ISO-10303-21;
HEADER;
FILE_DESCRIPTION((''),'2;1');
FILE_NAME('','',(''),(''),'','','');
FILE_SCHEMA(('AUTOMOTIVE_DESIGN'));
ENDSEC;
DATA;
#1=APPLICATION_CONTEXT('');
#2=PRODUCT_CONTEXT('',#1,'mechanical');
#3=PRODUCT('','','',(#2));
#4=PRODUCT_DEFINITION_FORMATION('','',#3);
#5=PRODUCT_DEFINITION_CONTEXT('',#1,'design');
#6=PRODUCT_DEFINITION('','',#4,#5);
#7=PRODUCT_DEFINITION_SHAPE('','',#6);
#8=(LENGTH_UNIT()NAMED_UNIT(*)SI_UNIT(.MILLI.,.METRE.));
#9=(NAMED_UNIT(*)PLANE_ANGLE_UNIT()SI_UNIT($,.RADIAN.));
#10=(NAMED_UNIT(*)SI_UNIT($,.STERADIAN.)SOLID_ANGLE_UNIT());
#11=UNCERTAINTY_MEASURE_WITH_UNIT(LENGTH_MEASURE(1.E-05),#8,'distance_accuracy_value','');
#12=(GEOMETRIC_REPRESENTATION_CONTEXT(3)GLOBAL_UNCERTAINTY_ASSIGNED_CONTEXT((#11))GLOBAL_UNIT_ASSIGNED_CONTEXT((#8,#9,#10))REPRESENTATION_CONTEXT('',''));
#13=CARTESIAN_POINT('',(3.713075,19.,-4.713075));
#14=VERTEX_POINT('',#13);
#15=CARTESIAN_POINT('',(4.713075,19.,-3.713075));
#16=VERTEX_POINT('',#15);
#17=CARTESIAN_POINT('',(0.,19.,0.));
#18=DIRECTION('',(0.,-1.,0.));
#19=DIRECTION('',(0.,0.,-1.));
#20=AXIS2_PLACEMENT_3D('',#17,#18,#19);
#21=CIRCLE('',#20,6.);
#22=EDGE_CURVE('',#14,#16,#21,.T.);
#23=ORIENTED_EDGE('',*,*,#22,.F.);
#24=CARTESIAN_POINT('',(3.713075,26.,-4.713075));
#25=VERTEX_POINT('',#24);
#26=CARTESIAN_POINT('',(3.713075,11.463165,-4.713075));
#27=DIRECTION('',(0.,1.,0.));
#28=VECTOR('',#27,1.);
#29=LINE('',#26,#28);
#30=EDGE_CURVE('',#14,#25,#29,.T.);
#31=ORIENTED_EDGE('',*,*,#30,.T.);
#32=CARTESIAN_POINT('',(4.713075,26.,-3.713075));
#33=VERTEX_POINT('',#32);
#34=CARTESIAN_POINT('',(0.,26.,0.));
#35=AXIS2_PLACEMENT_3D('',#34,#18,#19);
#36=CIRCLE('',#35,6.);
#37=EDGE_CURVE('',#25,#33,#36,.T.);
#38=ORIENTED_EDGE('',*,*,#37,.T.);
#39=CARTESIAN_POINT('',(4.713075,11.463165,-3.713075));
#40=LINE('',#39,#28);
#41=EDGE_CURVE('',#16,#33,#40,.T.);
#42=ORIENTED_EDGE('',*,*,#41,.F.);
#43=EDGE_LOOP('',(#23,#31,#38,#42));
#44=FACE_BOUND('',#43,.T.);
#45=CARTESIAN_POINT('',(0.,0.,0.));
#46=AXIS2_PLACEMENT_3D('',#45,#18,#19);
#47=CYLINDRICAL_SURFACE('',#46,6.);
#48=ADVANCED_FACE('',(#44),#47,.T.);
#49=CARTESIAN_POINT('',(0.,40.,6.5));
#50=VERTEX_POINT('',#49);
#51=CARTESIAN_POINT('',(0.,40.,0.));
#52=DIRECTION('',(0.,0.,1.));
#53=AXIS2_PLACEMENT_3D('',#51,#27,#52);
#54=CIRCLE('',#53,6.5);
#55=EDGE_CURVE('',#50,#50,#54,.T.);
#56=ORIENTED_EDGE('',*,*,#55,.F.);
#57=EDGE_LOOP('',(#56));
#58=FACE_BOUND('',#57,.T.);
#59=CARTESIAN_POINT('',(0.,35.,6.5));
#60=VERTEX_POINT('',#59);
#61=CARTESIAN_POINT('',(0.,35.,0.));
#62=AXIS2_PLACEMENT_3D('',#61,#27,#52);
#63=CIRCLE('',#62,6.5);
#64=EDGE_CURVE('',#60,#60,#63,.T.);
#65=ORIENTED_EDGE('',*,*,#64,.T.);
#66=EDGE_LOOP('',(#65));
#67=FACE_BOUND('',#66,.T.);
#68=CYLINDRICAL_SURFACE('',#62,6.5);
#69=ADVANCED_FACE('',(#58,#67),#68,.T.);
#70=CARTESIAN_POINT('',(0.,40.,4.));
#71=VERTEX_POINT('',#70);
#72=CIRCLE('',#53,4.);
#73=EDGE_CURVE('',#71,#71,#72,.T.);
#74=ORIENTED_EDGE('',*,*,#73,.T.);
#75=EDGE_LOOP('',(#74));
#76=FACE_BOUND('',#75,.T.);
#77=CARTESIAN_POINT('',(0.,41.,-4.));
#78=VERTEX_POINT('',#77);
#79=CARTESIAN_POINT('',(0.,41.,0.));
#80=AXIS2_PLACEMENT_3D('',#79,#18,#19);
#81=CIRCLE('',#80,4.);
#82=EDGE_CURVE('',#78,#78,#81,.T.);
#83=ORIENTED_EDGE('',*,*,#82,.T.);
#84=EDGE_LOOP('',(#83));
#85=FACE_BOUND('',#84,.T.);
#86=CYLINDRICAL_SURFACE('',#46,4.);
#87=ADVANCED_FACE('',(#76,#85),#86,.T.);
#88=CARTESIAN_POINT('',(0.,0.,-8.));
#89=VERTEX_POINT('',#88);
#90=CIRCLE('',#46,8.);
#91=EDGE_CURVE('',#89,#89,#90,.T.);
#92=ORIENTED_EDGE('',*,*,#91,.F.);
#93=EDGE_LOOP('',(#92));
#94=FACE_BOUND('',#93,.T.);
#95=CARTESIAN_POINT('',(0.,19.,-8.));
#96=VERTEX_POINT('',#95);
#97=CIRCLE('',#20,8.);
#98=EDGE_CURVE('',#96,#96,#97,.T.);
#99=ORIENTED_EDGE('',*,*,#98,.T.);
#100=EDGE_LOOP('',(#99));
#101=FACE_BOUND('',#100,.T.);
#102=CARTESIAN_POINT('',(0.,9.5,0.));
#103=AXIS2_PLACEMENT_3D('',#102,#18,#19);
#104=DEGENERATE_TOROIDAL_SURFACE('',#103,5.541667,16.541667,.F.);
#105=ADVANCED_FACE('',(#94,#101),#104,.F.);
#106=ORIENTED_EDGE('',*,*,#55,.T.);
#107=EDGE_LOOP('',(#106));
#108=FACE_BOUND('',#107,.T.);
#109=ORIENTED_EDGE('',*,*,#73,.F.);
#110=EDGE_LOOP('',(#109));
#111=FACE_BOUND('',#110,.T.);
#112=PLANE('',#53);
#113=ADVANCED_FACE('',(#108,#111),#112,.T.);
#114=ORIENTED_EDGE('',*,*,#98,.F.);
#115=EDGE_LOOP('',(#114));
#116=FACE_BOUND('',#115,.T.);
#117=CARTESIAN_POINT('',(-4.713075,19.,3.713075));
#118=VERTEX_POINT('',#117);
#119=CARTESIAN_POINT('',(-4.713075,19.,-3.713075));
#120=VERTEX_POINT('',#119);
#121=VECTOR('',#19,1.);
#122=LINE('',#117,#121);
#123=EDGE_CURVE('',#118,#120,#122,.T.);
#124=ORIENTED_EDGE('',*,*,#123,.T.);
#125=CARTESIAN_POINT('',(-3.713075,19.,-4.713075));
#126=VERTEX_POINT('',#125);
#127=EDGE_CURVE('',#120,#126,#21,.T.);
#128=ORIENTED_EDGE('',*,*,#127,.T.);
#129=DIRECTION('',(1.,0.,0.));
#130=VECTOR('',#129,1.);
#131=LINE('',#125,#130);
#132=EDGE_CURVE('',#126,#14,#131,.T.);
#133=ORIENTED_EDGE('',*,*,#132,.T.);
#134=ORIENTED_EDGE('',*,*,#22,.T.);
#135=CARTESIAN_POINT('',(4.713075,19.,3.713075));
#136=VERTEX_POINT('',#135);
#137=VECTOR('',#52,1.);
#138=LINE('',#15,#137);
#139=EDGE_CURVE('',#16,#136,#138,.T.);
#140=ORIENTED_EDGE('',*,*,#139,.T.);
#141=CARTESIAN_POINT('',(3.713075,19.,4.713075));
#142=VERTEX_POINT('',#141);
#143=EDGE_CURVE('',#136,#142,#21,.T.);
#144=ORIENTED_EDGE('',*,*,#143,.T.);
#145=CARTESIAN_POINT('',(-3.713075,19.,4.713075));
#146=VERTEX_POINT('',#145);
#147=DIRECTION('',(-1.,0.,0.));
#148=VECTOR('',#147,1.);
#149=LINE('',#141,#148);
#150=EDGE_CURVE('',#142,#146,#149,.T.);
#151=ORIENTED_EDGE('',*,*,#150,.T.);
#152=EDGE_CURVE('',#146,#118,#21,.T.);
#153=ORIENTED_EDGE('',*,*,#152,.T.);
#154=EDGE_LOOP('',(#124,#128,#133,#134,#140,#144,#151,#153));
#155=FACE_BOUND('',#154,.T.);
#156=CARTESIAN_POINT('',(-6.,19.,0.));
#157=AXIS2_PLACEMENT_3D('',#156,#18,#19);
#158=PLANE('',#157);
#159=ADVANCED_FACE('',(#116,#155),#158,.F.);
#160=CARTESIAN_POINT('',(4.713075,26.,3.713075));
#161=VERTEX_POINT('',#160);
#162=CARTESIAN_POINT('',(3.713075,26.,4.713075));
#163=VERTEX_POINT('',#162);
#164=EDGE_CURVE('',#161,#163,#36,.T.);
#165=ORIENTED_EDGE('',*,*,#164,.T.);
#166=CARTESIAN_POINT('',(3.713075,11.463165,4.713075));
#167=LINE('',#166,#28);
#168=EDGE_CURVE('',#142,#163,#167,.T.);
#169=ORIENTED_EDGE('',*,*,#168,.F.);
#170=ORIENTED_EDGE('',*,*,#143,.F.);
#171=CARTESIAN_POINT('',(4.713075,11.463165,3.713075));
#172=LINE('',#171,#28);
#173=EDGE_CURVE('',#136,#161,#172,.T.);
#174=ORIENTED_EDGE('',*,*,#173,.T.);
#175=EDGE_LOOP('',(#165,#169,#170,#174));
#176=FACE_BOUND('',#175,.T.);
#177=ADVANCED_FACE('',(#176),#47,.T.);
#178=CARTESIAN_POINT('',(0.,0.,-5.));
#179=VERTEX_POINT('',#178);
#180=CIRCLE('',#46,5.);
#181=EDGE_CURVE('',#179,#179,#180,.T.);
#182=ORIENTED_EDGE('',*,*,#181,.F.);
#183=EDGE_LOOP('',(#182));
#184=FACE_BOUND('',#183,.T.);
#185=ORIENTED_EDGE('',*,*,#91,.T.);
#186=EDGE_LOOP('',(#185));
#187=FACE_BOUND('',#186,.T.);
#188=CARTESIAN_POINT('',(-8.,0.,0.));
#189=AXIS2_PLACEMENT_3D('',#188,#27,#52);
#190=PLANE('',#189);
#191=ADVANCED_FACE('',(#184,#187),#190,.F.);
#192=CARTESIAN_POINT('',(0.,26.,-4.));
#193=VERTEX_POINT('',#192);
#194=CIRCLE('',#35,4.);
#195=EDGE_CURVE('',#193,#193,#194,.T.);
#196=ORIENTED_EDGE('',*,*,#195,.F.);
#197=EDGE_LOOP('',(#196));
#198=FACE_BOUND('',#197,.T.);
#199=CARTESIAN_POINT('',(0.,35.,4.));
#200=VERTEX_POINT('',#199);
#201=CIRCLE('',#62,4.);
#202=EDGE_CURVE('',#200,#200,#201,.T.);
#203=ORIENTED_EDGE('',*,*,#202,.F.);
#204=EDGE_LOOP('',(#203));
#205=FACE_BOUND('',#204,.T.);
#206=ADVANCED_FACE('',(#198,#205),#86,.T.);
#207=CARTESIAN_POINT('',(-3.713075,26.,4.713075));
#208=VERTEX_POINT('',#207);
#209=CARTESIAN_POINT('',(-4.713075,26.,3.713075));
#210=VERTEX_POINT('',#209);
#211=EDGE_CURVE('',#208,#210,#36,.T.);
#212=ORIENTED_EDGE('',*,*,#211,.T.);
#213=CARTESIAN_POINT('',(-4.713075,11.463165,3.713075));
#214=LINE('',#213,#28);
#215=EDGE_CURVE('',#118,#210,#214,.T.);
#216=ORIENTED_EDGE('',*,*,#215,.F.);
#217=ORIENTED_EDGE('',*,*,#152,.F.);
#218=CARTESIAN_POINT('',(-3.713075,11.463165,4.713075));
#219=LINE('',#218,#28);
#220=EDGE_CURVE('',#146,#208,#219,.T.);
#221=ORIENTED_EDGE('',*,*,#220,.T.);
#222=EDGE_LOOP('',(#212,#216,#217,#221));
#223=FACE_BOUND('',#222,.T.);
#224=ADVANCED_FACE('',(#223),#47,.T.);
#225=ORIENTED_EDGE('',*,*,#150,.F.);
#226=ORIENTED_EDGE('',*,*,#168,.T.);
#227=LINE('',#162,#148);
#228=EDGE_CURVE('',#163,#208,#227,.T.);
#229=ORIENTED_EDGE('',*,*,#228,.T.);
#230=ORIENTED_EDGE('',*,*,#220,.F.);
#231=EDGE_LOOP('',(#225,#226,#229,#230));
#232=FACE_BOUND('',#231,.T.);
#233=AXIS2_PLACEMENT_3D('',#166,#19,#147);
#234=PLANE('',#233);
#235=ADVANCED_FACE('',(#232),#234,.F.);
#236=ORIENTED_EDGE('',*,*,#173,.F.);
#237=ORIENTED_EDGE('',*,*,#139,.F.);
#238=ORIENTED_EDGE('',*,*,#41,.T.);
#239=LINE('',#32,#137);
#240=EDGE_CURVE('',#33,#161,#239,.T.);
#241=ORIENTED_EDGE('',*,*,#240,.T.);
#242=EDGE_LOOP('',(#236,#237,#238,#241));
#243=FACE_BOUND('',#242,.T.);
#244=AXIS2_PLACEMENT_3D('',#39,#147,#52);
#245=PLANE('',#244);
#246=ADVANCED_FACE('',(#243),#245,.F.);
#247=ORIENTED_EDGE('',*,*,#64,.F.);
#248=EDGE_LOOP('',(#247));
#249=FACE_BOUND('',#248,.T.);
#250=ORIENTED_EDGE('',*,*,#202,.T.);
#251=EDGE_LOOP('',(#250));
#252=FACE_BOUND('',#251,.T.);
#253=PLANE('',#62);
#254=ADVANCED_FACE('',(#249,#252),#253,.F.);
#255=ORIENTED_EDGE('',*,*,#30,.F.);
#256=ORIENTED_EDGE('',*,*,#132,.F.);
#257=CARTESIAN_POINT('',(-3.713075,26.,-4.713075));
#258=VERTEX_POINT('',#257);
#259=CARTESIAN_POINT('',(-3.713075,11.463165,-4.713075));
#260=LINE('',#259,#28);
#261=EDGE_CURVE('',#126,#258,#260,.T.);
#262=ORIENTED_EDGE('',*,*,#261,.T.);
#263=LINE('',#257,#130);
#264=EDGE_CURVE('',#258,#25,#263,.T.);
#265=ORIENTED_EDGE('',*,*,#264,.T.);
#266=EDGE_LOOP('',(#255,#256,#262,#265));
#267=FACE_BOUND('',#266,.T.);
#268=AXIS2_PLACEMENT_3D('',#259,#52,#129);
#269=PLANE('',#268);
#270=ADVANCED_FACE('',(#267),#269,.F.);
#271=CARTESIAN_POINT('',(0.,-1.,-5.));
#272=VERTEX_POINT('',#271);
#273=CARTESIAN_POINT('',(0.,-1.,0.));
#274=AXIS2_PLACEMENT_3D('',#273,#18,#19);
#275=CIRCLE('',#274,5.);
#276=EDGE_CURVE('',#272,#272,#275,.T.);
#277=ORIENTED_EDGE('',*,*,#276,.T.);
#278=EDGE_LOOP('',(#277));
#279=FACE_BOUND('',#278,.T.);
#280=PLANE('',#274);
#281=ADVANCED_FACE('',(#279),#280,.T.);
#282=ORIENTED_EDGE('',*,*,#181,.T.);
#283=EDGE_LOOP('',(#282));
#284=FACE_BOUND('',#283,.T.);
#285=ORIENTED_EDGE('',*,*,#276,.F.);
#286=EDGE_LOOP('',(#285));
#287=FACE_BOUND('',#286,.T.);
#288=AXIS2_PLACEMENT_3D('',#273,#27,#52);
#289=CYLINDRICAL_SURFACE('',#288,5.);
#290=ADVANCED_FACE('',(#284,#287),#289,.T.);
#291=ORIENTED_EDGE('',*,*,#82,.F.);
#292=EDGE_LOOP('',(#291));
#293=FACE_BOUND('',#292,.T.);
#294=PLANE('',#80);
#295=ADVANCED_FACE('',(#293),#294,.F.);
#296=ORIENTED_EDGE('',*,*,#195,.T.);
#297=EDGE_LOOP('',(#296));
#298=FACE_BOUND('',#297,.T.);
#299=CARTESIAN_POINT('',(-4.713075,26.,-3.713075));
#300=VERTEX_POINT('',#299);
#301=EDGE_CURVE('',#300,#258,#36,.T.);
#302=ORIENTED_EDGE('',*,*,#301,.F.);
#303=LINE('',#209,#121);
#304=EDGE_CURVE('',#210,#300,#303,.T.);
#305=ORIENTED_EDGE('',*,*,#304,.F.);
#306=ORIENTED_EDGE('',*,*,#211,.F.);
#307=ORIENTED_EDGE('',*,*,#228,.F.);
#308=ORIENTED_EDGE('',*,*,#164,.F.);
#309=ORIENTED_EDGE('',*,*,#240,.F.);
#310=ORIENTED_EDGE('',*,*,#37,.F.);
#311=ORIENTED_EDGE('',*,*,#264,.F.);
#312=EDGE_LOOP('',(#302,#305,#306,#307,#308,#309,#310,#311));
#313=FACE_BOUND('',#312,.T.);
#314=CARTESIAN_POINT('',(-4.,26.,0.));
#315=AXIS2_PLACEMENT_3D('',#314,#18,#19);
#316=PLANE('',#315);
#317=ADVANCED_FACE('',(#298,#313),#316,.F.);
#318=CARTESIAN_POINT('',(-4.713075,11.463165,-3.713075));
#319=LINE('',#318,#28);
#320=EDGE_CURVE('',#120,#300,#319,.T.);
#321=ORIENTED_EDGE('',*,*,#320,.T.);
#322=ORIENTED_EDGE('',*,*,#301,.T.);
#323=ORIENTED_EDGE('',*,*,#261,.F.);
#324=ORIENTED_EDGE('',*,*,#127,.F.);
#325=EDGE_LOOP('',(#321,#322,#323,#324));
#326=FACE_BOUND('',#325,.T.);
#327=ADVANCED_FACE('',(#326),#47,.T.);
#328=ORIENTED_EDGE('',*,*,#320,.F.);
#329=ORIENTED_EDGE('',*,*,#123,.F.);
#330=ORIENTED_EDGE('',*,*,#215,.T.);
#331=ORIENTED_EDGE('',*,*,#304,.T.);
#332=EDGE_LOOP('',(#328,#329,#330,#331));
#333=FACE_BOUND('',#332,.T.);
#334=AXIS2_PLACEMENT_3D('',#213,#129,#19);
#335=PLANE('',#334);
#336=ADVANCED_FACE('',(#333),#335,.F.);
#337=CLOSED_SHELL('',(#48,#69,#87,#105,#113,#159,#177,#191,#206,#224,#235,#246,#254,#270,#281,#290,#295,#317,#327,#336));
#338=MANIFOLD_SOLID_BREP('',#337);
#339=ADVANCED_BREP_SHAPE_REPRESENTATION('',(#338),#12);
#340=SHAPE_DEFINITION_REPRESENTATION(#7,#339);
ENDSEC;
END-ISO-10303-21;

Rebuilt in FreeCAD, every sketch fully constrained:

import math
import FreeCAD as App
import Part
import Sketcher
from FreeCAD import Vector

doc = App.newDocument("Part")
body = doc.addObject("PartDesign::Body", "Body")

sketch1 = body.newObject("Sketcher::SketchObject", "Sketch")
sketch1.AttachmentSupport = (doc.getObject("XY_Plane"), [""])
sketch1.MapMode = "FlatFace"
sketch1.addGeometry([
    Part.LineSegment(Vector(-8, 0, 0), Vector(0, 0, 0)),
    Part.LineSegment(Vector(0, 0, 0), Vector(0, 41, 0)),
    Part.LineSegment(Vector(0, 41, 0), Vector(-4, 41, 0)),
    Part.LineSegment(Vector(-4, 41, 0), Vector(-4, 26, 0)),
    Part.LineSegment(Vector(-4, 26, 0), Vector(-6, 26, 0)),
    Part.LineSegment(Vector(-6, 26, 0), Vector(-6, 19, 0)),
    Part.LineSegment(Vector(-6, 19, 0), Vector(-8, 19, 0)),
    Part.ArcOfCircle(Part.Circle(Vector(5.5, 9.5, 0), Vector(0, 0, 1), 16.5), math.radians(145), math.radians(215)),
], False)
sketch1.addConstraint([
    Sketcher.Constraint("Coincident", 0, 2, 1, 1),
    Sketcher.Constraint("Coincident", 1, 2, 2, 1),
    Sketcher.Constraint("Coincident", 2, 2, 3, 1),
    Sketcher.Constraint("Coincident", 3, 2, 4, 1),
    Sketcher.Constraint("Coincident", 4, 2, 5, 1),
    Sketcher.Constraint("Coincident", 5, 2, 6, 1),
    Sketcher.Constraint("Coincident", 6, 2, 7, 1),
    Sketcher.Constraint("Coincident", 7, 2, 0, 1),
    Sketcher.Constraint("Horizontal", 0),
    Sketcher.Constraint("Vertical", 1),
    Sketcher.Constraint("Horizontal", 2),
    Sketcher.Constraint("Vertical", 3),
    Sketcher.Constraint("Horizontal", 4),
    Sketcher.Constraint("Vertical", 5),
    Sketcher.Constraint("Horizontal", 6),
    Sketcher.Constraint("Coincident", 0, 2, -1, 1),
    Sketcher.Constraint("Vertical", 6, 2, 7, 2),
    Sketcher.Constraint("Equal", 4, 6),
    Sketcher.Constraint("DistanceX", 0, 1, 0, 2, 8.0),
    Sketcher.Constraint("DistanceX", 2, 2, 2, 1, 4.0),
    Sketcher.Constraint("DistanceY", 1, 1, 1, 2, 41.0),
    Sketcher.Constraint("DistanceY", 3, 2, 3, 1, 15.0),
    Sketcher.Constraint("DistanceY", 5, 2, 5, 1, 7.0),
    Sketcher.Constraint("Radius", 7, 16.541667),
])
revolution = body.newObject("PartDesign::Revolution", "Revolution")
revolution.Profile = sketch1
revolution.ReferenceAxis = (sketch1, ["V_Axis"])
revolution.Angle = 360

sketch2 = body.newObject("Sketcher::SketchObject", "Sketch001")
sketch2.AttachmentSupport = (doc.getObject("XZ_Plane"), [""])
sketch2.MapMode = "FlatFace"
sketch2.AttachmentOffset = App.Placement(Vector(0, 0, -26), App.Rotation())
sketch2.addGeometry([
    Part.LineSegment(Vector(-4, -5, 0), Vector(4, -5, 0)),
    Part.ArcOfCircle(Part.Circle(Vector(0, 0, 0), Vector(0, 0, 1), 6), math.radians(-128), math.radians(-52)),
    Part.LineSegment(Vector(5, -4, 0), Vector(5, 4, 0)),
    Part.ArcOfCircle(Part.Circle(Vector(0, 0, 0), Vector(0, 0, 1), 6), math.radians(-38), math.radians(38)),
    Part.LineSegment(Vector(4, 5, 0), Vector(-4, 5, 0)),
    Part.ArcOfCircle(Part.Circle(Vector(0, 0, 0), Vector(0, 0, 1), 6), math.radians(52), math.radians(128)),
    Part.LineSegment(Vector(-5, 4, 0), Vector(-5, -4, 0)),
    Part.ArcOfCircle(Part.Circle(Vector(0, 0, 0), Vector(0, 0, 1), 6), math.radians(142), math.radians(218)),
], False)
sketch2.addConstraint([
    Sketcher.Constraint("Coincident", 0, 1, 1, 1),
    Sketcher.Constraint("Coincident", 1, 2, 0, 2),
    Sketcher.Constraint("Coincident", 2, 1, 3, 1),
    Sketcher.Constraint("Coincident", 3, 2, 2, 2),
    Sketcher.Constraint("Coincident", 4, 1, 5, 1),
    Sketcher.Constraint("Coincident", 5, 2, 4, 2),
    Sketcher.Constraint("Coincident", 6, 1, 7, 1),
    Sketcher.Constraint("Coincident", 7, 2, 6, 2),
    Sketcher.Constraint("Horizontal", 0),
    Sketcher.Constraint("Vertical", 2),
    Sketcher.Constraint("Horizontal", 4),
    Sketcher.Constraint("Vertical", 6),
    Sketcher.Constraint("Coincident", 1, 3, -1, 1),
    Sketcher.Constraint("Coincident", 3, 3, -1, 1),
    Sketcher.Constraint("Coincident", 5, 3, -1, 1),
    Sketcher.Constraint("Coincident", 7, 3, -1, 1),
    Sketcher.Constraint("Equal", 1, 3),
    Sketcher.Constraint("Equal", 3, 5),
    Sketcher.Constraint("Equal", 5, 7),
    Sketcher.Constraint("Horizontal", 3, 2, 6, 1),
    Sketcher.Constraint("Vertical", 1, 2, 4, 1),
    Sketcher.Constraint("Equal", 4, 2),
    Sketcher.Constraint("Radius", 1, 6.0),
    Sketcher.Constraint("DistanceX", 1, 2, 2, 1, 1.0),
])
pocket1 = body.newObject("PartDesign::Pocket", "Pocket")
pocket1.Profile = sketch2
pocket1.Length = 7
pocket1.Reversed = True

sketch3 = body.newObject("Sketcher::SketchObject", "Sketch002")
sketch3.AttachmentSupport = (doc.getObject("XZ_Plane"), [""])
sketch3.MapMode = "FlatFace"
sketch3.addGeometry(Part.Circle(Vector(0, 0, 0), Vector(0, 0, 1), 5), False)
sketch3.addConstraint([
    Sketcher.Constraint("Coincident", 0, 3, -1, 1),
    Sketcher.Constraint("Diameter", 0, 10.0),
])
pad1 = body.newObject("PartDesign::Pad", "Pad")
pad1.Profile = sketch3
pad1.Length = 1

sketch4 = body.newObject("Sketcher::SketchObject", "Sketch003")
sketch4.AttachmentSupport = (doc.getObject("XZ_Plane"), [""])
sketch4.MapMode = "FlatFace"
sketch4.AttachmentOffset = App.Placement(Vector(0, 0, -40), App.Rotation())
sketch4.addGeometry(Part.Circle(Vector(0, 0, 0), Vector(0, 0, 1), 6), False)
sketch4.addConstraint([
    Sketcher.Constraint("Coincident", 0, 3, -1, 1),
    Sketcher.Constraint("Diameter", 0, 13.0),
])
pad2 = body.newObject("PartDesign::Pad", "Pad001")
pad2.Profile = sketch4
pad2.Length = 5

doc.recompute()
